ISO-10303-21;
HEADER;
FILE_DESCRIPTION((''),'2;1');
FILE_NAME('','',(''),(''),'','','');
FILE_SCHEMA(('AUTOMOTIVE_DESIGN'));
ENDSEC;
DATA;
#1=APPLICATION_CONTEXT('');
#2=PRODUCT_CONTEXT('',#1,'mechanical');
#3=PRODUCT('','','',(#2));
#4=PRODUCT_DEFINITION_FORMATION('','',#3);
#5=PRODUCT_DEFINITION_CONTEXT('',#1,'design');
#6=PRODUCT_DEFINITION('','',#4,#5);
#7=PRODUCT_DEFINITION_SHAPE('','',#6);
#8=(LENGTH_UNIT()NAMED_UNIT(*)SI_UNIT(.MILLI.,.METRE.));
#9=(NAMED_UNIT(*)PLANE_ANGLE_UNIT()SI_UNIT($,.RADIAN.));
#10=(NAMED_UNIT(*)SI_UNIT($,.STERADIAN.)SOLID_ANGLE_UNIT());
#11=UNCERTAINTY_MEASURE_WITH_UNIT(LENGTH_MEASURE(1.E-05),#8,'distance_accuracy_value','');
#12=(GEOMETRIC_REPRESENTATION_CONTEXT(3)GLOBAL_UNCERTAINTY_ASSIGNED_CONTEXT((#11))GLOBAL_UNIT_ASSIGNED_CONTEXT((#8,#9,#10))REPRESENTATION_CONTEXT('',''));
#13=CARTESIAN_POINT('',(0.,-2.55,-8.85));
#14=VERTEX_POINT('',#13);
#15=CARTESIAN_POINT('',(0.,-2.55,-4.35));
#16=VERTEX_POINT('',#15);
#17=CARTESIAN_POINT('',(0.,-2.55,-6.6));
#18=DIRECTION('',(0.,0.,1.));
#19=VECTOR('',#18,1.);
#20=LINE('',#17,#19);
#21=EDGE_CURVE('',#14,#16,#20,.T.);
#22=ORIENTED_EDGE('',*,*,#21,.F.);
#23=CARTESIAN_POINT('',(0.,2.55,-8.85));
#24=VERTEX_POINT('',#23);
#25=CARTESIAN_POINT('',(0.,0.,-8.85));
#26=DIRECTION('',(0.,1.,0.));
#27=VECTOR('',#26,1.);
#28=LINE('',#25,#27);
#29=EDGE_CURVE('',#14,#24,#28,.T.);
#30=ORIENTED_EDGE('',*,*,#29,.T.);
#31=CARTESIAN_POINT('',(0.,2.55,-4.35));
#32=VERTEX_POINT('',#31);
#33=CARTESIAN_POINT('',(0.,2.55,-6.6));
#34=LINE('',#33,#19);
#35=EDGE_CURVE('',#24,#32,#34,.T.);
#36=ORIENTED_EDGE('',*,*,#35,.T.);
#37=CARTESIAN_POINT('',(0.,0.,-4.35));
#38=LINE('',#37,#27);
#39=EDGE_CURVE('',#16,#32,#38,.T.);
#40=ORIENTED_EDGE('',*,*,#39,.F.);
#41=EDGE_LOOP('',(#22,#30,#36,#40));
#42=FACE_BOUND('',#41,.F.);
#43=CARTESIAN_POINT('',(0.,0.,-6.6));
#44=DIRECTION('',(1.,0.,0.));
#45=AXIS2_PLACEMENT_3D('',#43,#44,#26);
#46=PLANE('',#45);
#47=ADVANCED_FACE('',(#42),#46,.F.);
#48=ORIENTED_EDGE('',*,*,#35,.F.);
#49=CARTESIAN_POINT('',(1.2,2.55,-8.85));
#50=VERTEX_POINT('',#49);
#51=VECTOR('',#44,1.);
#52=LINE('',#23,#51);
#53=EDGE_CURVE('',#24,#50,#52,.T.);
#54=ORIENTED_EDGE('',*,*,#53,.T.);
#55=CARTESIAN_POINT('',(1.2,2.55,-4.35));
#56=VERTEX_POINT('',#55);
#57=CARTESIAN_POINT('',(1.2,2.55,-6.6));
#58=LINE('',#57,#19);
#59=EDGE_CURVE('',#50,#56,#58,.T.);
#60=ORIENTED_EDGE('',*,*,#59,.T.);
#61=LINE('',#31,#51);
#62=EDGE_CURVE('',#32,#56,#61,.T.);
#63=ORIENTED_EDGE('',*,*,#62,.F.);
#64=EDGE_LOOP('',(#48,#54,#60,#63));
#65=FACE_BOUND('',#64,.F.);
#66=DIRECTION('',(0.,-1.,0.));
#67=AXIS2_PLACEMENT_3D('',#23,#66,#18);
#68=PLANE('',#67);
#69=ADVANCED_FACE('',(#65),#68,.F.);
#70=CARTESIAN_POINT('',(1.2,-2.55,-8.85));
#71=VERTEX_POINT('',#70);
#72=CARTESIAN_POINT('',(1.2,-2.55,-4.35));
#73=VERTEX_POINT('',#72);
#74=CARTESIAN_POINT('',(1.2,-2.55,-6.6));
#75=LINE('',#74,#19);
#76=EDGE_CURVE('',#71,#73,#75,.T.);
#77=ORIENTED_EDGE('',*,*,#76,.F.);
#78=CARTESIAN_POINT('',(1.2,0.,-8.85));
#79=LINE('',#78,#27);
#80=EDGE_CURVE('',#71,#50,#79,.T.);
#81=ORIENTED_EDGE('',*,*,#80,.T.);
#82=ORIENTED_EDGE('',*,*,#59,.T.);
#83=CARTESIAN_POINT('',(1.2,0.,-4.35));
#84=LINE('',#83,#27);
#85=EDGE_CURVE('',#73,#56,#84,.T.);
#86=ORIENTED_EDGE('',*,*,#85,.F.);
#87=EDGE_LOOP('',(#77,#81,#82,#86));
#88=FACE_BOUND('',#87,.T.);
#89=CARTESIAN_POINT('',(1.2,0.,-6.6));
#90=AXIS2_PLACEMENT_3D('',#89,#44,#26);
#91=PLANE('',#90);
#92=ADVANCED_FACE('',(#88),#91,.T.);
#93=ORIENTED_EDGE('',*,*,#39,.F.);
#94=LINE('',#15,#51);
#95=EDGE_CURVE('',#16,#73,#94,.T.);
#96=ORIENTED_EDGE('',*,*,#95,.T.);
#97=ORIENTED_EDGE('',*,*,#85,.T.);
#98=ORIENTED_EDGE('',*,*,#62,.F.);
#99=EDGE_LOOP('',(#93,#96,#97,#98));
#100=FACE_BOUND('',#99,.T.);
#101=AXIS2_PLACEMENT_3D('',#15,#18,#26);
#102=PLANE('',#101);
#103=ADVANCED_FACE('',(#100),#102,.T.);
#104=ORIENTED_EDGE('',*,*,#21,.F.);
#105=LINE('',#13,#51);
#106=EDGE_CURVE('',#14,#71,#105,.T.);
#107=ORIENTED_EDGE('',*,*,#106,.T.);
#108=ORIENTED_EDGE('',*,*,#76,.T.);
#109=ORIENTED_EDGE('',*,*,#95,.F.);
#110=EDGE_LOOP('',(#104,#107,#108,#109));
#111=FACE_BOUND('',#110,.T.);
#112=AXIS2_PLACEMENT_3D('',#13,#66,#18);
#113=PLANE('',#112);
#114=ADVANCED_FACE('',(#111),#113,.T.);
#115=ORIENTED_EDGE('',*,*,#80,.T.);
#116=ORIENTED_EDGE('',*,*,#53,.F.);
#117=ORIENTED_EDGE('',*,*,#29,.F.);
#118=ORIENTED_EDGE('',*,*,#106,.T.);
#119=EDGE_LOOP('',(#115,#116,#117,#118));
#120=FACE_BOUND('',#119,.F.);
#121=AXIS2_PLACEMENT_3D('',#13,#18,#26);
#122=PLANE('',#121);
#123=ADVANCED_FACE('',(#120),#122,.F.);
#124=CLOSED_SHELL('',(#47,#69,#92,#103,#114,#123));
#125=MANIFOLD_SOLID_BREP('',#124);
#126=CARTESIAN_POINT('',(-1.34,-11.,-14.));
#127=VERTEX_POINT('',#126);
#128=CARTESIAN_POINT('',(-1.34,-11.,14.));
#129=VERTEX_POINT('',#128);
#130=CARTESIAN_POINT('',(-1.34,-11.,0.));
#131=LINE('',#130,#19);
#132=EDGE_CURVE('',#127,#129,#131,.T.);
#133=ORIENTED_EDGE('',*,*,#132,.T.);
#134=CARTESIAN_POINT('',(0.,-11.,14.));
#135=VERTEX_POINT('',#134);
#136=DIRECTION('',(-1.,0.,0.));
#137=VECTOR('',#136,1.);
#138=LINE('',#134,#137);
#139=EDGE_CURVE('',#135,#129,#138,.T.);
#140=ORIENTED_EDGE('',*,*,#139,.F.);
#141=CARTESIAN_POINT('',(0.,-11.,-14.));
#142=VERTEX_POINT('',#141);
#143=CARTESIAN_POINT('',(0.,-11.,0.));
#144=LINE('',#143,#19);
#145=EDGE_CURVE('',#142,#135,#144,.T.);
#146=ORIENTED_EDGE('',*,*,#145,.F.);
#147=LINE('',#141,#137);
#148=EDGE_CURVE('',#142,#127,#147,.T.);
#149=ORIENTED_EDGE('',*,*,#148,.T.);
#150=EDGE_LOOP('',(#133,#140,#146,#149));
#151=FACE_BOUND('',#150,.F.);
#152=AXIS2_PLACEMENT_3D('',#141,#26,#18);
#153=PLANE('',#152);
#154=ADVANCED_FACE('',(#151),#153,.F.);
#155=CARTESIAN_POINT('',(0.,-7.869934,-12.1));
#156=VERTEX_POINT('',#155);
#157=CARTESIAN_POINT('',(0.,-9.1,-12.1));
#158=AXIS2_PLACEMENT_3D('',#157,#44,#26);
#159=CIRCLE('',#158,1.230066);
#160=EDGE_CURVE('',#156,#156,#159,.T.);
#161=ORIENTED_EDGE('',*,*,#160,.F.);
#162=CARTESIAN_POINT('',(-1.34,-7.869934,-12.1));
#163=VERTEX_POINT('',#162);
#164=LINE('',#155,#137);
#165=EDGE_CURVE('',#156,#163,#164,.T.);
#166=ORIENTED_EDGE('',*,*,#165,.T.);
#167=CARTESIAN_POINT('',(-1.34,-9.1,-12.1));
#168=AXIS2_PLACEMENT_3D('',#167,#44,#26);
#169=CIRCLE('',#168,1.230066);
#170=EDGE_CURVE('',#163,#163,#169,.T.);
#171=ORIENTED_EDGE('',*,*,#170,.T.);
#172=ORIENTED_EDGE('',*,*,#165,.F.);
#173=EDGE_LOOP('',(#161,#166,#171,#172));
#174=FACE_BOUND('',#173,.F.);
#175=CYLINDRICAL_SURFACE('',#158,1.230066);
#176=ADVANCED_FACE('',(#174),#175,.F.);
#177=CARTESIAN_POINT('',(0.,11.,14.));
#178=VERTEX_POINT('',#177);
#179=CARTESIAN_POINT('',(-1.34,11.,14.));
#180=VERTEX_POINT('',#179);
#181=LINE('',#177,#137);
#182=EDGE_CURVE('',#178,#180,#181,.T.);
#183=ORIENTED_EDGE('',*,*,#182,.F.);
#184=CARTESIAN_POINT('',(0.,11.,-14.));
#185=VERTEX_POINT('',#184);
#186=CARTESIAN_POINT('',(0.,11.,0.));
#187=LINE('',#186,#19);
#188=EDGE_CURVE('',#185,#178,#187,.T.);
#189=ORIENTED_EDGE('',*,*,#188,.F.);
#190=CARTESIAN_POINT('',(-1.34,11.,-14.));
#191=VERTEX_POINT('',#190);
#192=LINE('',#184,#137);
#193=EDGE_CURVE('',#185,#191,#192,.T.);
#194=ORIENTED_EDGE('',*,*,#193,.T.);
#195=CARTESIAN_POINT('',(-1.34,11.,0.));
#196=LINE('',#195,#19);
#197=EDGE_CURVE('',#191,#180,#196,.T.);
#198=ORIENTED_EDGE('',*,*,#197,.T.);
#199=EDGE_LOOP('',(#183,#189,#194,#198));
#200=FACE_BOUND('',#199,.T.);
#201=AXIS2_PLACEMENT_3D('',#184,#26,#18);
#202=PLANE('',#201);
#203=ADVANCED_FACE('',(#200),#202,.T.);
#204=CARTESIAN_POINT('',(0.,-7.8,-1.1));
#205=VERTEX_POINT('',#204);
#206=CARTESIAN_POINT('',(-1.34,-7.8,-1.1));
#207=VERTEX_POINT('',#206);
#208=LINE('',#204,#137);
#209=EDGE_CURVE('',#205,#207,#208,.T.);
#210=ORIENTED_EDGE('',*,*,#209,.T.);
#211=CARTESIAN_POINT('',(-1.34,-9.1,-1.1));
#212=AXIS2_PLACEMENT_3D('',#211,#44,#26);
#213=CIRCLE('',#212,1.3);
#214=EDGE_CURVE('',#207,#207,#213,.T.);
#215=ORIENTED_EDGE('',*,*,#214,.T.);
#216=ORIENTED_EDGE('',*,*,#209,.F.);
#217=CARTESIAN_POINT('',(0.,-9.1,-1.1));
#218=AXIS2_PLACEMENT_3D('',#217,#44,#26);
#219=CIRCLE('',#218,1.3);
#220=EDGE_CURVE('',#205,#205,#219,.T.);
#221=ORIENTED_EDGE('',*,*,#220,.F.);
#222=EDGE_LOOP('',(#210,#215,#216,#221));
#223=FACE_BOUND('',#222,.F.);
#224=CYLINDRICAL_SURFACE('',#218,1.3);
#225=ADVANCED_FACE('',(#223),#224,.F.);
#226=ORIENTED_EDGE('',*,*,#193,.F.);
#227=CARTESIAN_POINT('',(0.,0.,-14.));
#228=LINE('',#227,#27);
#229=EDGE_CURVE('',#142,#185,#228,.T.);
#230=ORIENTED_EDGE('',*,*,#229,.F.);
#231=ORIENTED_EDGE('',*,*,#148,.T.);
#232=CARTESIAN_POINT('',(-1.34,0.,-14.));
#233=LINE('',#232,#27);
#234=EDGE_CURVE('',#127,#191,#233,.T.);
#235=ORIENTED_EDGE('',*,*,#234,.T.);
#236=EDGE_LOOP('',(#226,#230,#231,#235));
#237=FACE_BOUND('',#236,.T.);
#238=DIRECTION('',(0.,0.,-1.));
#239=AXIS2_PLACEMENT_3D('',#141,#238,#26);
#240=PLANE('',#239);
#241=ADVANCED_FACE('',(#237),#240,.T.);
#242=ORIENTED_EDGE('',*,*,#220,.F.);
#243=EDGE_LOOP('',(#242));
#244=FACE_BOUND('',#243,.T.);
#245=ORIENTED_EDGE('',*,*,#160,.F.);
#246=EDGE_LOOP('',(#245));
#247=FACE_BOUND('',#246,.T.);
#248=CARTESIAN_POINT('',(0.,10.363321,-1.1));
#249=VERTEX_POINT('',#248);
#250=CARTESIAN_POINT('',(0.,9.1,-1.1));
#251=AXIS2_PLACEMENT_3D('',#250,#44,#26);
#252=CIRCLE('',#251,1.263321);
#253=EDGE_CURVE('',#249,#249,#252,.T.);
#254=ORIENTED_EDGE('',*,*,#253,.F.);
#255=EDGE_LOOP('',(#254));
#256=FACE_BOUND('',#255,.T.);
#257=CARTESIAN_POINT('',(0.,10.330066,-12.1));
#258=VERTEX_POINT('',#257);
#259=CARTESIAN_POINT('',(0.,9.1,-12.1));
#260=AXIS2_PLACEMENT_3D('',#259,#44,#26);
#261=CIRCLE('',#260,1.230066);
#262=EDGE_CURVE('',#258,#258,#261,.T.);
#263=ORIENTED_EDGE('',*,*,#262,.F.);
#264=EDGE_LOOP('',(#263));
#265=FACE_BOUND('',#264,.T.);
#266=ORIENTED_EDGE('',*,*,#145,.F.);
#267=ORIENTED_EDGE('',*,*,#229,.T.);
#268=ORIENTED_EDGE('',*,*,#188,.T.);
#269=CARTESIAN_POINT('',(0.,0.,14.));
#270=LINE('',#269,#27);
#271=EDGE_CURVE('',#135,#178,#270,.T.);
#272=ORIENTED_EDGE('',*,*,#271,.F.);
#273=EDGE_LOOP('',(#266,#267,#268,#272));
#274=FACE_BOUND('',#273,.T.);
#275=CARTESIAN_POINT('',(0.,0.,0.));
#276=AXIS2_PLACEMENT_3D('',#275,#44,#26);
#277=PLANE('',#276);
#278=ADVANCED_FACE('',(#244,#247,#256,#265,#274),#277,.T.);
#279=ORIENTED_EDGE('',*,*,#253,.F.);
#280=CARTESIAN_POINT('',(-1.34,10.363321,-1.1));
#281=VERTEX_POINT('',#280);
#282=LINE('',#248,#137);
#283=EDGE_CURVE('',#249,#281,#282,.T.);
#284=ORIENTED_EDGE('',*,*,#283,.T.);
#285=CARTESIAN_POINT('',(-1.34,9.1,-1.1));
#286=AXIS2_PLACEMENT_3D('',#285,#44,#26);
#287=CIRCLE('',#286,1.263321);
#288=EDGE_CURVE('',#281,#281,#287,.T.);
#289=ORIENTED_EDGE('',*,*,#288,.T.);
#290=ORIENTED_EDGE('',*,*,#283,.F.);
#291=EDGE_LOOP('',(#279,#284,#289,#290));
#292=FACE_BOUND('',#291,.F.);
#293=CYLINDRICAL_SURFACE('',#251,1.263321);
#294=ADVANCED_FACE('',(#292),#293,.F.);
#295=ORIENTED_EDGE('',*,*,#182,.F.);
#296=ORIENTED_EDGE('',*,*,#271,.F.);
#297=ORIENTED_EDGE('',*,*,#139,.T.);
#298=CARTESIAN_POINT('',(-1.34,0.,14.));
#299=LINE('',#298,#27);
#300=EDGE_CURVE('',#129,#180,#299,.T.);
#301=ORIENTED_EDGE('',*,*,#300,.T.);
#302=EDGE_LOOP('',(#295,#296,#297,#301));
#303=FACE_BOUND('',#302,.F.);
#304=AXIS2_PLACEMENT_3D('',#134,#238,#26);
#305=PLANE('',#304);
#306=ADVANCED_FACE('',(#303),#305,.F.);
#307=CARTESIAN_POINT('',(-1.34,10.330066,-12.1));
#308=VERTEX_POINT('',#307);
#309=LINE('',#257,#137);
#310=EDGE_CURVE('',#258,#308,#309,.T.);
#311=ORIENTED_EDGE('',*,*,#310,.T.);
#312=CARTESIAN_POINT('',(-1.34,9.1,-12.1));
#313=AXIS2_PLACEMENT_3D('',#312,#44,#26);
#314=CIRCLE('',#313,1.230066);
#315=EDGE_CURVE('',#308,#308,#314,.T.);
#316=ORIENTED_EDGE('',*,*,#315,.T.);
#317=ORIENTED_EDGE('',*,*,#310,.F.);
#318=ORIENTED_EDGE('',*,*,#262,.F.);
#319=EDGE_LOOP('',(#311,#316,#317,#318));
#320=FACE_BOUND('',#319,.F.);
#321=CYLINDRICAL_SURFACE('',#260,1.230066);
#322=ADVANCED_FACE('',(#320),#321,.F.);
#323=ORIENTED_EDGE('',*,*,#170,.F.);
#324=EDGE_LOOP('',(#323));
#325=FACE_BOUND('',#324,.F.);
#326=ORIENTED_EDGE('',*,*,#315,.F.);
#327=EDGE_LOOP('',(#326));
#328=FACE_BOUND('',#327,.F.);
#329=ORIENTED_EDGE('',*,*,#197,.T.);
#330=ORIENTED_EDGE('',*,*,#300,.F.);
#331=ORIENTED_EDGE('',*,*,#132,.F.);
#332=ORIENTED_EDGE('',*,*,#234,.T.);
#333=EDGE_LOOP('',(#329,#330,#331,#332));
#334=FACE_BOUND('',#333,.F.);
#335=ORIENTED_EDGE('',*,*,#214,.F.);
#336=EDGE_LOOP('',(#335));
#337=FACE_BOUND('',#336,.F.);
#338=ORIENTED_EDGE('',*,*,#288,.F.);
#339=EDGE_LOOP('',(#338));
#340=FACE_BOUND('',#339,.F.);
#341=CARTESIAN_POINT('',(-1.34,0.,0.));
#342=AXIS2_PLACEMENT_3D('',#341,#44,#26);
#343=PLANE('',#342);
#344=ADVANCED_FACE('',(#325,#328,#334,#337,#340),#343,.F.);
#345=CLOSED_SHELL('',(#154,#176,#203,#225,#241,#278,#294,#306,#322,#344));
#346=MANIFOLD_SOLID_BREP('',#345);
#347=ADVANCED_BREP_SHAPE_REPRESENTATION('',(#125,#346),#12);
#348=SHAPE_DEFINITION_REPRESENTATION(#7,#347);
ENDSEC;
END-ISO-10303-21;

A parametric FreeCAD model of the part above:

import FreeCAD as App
import Part
import Sketcher

doc = App.newDocument("Part")
params = doc.addObject("Spreadsheet::Sheet", "Params")
for row, (alias, value) in enumerate([
    ("sketch1_diameter", "2.6 mm"),
    ("sketch1_width", "22 mm"),
    ("sketch1_height", "28 mm"),
    ("pad1_length", "1.34 mm"),
    ("sketch2_width", "5.1 mm"),
    ("sketch2_height", "4.5 mm"),
    ("pad2_length", "1.2 mm"),
], start=1):
    params.set(f"A{row}", alias)
    params.set(f"B{row}", "=" + value)
    params.setAlias(f"B{row}", alias)

body = doc.addObject("PartDesign::Body", "Body")

# Sketch on YZ plane
sketch1 = body.newObject("Sketcher::SketchObject", "Sketch")
sketch1.AttachmentSupport = (doc.getObject("YZ_Plane"), [""])
sketch1.MapMode = "FlatFace"
sketch1.addGeometry([
    Part.LineSegment(App.Vector(-11, 14, 0), App.Vector(-11, -14, 0)),  # 0
    Part.LineSegment(App.Vector(-11, -14, 0), App.Vector(11, -14, 0)),  # 1
    Part.LineSegment(App.Vector(11, -14, 0), App.Vector(11, 14, 0)),  # 2
    Part.LineSegment(App.Vector(11, 14, 0), App.Vector(-11, 14, 0)),  # 3
    Part.Circle(App.Vector(-9.1, -12.1, 0), App.Vector(0, 0, 1), 1.230066),  # 4
    Part.Circle(App.Vector(9.1, -12.1, 0), App.Vector(0, 0, 1), 1.230066),  # 5
    Part.Circle(App.Vector(-9.1, -1.1, 0), App.Vector(0, 0, 1), 1.3),  # 6
    Part.Circle(App.Vector(9.1, -1.1, 0), App.Vector(0, 0, 1), 1.263321),  # 7
], False)
sketch1.addConstraint([
    Sketcher.Constraint("Coincident", 0, 2, 1, 1),
    Sketcher.Constraint("Coincident", 1, 2, 2, 1),
    Sketcher.Constraint("Coincident", 2, 2, 3, 1),
    Sketcher.Constraint("Coincident", 3, 2, 0, 1),
    Sketcher.Constraint("Vertical", 0),
    Sketcher.Constraint("Horizontal", 1),
    Sketcher.Constraint("Vertical", 2),
    Sketcher.Constraint("Horizontal", 3),
    Sketcher.Constraint("Equal", 4, 5),
    Sketcher.Constraint("Symmetric", 0, 2, 2, 2, -1, 1),
    Sketcher.Constraint("Symmetric", 4, 3, 5, 3, -2),
    Sketcher.Constraint("Symmetric", 6, 3, 7, 3, -2),
    Sketcher.Constraint("Vertical", 4, 3, 6, 3),
    Sketcher.Constraint("Diameter", 6, 2.6),
    Sketcher.Constraint("DistanceX", 1, 1, 1, 2, 22.0),
    Sketcher.Constraint("DistanceY", 0, 2, 0, 1, 28.0),
    Sketcher.Constraint("DistanceY", 4, 3, 6, 3, 11.0),
    Sketcher.Constraint("DistanceX", 4, 3, -1, 1, 9.1),
    Sketcher.Constraint("DistanceY", 4, 3, -1, 1, 12.1),
    Sketcher.Constraint("Diameter", 7, 2.526642),
    Sketcher.Constraint("Diameter", 4, 2.460132),
])
sketch1.setExpression("Constraints[13]", "Params.sketch1_diameter")
sketch1.setExpression("Constraints[14]", "Params.sketch1_width")
sketch1.setExpression("Constraints[15]", "Params.sketch1_height")
pad1 = body.newObject("PartDesign::Pad", "Pad")
pad1.Profile = sketch1
pad1.setExpression("Length", "Params.pad1_length")
pad1.Reversed = True
body2 = doc.addObject("PartDesign::Body", "Body001")

# Sketch on YZ plane
sketch2 = body2.newObject("Sketcher::SketchObject", "Sketch001")
sketch2.AttachmentSupport = (doc.getObject("YZ_Plane001"), [""])
sketch2.MapMode = "FlatFace"
sketch2.addGeometry([
    Part.LineSegment(App.Vector(-2.55, -4.35, 0), App.Vector(-2.55, -8.85, 0)),
    Part.LineSegment(App.Vector(-2.55, -8.85, 0), App.Vector(2.55, -8.85, 0)),
    Part.LineSegment(App.Vector(2.55, -8.85, 0), App.Vector(2.55, -4.35, 0)),
    Part.LineSegment(App.Vector(2.55, -4.35, 0), App.Vector(-2.55, -4.35, 0)),
], False)
sketch2.addConstraint([
    Sketcher.Constraint("Coincident", 0, 2, 1, 1),
    Sketcher.Constraint("Coincident", 1, 2, 2, 1),
    Sketcher.Constraint("Coincident", 2, 2, 3, 1),
    Sketcher.Constraint("Coincident", 3, 2, 0, 1),
    Sketcher.Constraint("Vertical", 0),
    Sketcher.Constraint("Horizontal", 1),
    Sketcher.Constraint("Vertical", 2),
    Sketcher.Constraint("Horizontal", 3),
    Sketcher.Constraint("DistanceX", 1, 1, 1, 2, 5.1),
    Sketcher.Constraint("DistanceY", 0, 2, 0, 1, 4.5),
    Sketcher.Constraint("DistanceX", 0, 2, -1, 1, 2.55),
    Sketcher.Constraint("DistanceY", 0, 2, -1, 1, 8.85),
])
sketch2.setExpression("Constraints[8]", "Params.sketch2_width")
sketch2.setExpression("Constraints[9]", "Params.sketch2_height")
pad2 = body2.newObject("PartDesign::Pad", "Pad001")
pad2.Profile = sketch2
pad2.setExpression("Length", "Params.pad2_length")

doc.recompute()
